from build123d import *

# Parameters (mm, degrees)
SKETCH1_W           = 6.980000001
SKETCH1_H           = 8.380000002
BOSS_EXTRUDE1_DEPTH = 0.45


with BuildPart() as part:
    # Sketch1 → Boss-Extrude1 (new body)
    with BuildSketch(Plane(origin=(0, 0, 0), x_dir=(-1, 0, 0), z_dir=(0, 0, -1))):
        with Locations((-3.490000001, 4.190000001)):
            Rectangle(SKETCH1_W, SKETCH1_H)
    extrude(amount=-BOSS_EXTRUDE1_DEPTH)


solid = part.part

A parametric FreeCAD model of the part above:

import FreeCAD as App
import Part
import Sketcher

V = App.Vector


def add_polygon(sketch, points):
    """Adds a closed chain of lines whose ends are joined by coincident constraints."""
    first, n = sketch.GeometryCount, len(points)
    for a, b in zip(points, points[1:] + points[:1]):
        sketch.addGeometry(Part.LineSegment(App.Vector(*a, 0), App.Vector(*b, 0)), False)
    for i in range(n):
        sketch.addConstraint(Sketcher.Constraint("Coincident", first + i, 2, first + (i + 1) % n, 1))

doc = App.newDocument("Part")
body = doc.addObject("PartDesign::Body", "Body")

# Sketch on XY plane
sketch1 = body.newObject("Sketcher::SketchObject", "Sketch")
sketch1.AttachmentSupport = (doc.getObject("XY_Plane"), [""])
sketch1.MapMode = "FlatFace"
add_polygon(sketch1, [(6.98, 8.38), (6.98, 0), (0, 0), (0, 8.38)])  # lines 0-3
sketch1.addConstraint(Sketcher.Constraint("Vertical", 0))
sketch1.addConstraint(Sketcher.Constraint("Horizontal", 1))
sketch1.addConstraint(Sketcher.Constraint("Vertical", 2))
sketch1.addConstraint(Sketcher.Constraint("Horizontal", 3))
sketch1.addConstraint(Sketcher.Constraint("Coincident", 1, 2, -1, 1))
sketch1.addConstraint(Sketcher.Constraint("DistanceX", 1, 2, 1, 1, 6.98))
sketch1.addConstraint(Sketcher.Constraint("DistanceY", 0, 2, 0, 1, 8.38))
pad1 = body.newObject("PartDesign::Pad", "Pad")
pad1.Profile = sketch1
pad1.Length = 0.45

doc.recompute()
